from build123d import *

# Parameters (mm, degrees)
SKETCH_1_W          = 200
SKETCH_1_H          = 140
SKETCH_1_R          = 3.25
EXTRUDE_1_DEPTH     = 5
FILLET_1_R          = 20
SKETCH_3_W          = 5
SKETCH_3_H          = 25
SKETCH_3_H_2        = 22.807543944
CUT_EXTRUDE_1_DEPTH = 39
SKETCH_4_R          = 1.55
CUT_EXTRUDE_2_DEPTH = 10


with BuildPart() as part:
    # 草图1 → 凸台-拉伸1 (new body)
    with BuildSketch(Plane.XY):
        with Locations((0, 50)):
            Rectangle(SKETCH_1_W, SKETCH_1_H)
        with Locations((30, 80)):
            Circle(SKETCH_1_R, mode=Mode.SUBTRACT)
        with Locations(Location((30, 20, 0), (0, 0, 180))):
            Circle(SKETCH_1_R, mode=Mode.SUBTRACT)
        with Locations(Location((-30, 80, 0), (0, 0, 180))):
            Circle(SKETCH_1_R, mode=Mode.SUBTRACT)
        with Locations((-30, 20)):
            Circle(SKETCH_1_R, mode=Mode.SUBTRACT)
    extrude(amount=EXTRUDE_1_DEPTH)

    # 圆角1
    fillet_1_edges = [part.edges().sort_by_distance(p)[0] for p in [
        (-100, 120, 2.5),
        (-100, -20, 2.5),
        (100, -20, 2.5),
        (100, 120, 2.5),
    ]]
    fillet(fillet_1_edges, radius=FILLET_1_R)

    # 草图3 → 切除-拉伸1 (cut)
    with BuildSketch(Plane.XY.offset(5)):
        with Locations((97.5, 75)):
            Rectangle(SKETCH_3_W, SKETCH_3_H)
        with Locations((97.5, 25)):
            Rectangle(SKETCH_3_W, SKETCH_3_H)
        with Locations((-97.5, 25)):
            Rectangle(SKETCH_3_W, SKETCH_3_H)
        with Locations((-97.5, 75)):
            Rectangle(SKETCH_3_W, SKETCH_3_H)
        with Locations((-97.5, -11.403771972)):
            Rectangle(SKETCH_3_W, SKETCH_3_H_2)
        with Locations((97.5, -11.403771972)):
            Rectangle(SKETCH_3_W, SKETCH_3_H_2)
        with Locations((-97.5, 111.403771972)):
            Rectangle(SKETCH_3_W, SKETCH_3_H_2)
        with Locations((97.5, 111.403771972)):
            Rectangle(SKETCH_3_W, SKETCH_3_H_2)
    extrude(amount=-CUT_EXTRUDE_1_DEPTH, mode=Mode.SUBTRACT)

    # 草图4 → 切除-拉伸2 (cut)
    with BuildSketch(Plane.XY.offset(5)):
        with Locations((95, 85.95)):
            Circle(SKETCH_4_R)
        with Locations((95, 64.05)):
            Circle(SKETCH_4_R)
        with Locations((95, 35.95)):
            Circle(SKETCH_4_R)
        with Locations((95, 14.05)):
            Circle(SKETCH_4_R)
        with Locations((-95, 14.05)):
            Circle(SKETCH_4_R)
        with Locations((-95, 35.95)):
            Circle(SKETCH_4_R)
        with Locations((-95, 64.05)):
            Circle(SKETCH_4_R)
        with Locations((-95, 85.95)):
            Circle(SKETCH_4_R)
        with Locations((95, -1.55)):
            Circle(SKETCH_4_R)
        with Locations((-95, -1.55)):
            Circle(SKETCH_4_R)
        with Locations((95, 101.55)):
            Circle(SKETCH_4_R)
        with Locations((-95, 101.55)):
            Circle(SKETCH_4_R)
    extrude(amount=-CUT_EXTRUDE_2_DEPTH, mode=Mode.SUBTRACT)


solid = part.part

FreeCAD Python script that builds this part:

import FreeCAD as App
import Part
import Sketcher


def edges_at(feature, points):
    """Names of the edges that pass closest to the given points."""
    edges = feature.Shape.Edges
    near = lambda p: min(range(len(edges)), key=lambda i: edges[i].distToShape(Part.Vertex(*p))[0])
    return sorted({f"Edge{near(p) + 1}" for p in points})


def add_polygon(sketch, points):
    """Adds a closed chain of lines whose ends are joined by coincident constraints."""
    first, n = sketch.GeometryCount, len(points)
    for a, b in zip(points, points[1:] + points[:1]):
        sketch.addGeometry(Part.LineSegment(App.Vector(*a, 0), App.Vector(*b, 0)), False)
    for i in range(n):
        sketch.addConstraint(Sketcher.Constraint("Coincident", first + i, 2, first + (i + 1) % n, 1))

doc = App.newDocument("Part")
body = doc.addObject("PartDesign::Body", "Body")

# Sketch on XY plane
sketch1 = body.newObject("Sketcher::SketchObject", "Sketch")
sketch1.AttachmentSupport = (doc.getObject("XY_Plane"), [""])
sketch1.MapMode = "FlatFace"
add_polygon(sketch1, [(-100, 120), (-100, -20), (100, -20), (100, 120)])  # lines 0-3
sketch1.addGeometry(Part.Circle(App.Vector(-30, 20, 0), App.Vector(0, 0, 1), 3.25), False)  # 4
sketch1.addGeometry(Part.Circle(App.Vector(30, 20, 0), App.Vector(0, 0, 1), 3.25), False)  # 5
sketch1.addGeometry(Part.Circle(App.Vector(-30, 80, 0), App.Vector(0, 0, 1), 3.25), False)  # 6
sketch1.addGeometry(Part.Circle(App.Vector(30, 80, 0), App.Vector(0, 0, 1), 3.25), False)  # 7
sketch1.addConstraint(Sketcher.Constraint("Vertical", 0))
sketch1.addConstraint(Sketcher.Constraint("Horizontal", 1))
sketch1.addConstraint(Sketcher.Constraint("Vertical", 2))
sketch1.addConstraint(Sketcher.Constraint("Horizontal", 3))
sketch1.addConstraint(Sketcher.Constraint("Equal", 4, 5))
sketch1.addConstraint(Sketcher.Constraint("Equal", 5, 6))
sketch1.addConstraint(Sketcher.Constraint("Equal", 6, 7))
sketch1.addConstraint(Sketcher.Constraint("Symmetric", 4, 3, 5, 3, -2))
sketch1.addConstraint(Sketcher.Constraint("Symmetric", 6, 3, 7, 3, -2))
sketch1.addConstraint(Sketcher.Constraint("Vertical", 4, 3, 6, 3))
sketch1.addConstraint(Sketcher.Constraint("Diameter", 4, 6.5))
sketch1.addConstraint(Sketcher.Constraint("DistanceX", 1, 1, 1, 2, 200.0))
sketch1.addConstraint(Sketcher.Constraint("DistanceY", 0, 2, 0, 1, 140.0))
sketch1.addConstraint(Sketcher.Constraint("DistanceX", 4, 3, -1, 1, 30.0))
sketch1.addConstraint(Sketcher.Constraint("DistanceY", -1, 1, 4, 3, 20.0))
sketch1.addConstraint(Sketcher.Constraint("DistanceY", -1, 1, 6, 3, 80.0))
sketch1.addConstraint(Sketcher.Constraint("DistanceX", 0, 2, -1, 1, 100.0))
sketch1.addConstraint(Sketcher.Constraint("DistanceY", 0, 2, -1, 1, 20.0))
pad1 = body.newObject("PartDesign::Pad", "Pad")
pad1.Profile = sketch1
pad1.Length = 5
doc.recompute()

fillet = body.newObject("PartDesign::Fillet", "Fillet")
fillet.Base = (pad1, edges_at(pad1, [
    (-100, 120, 2.5),
    (-100, -20, 2.5),
    (100, -20, 2.5),
    (100, 120, 2.5),
]))
fillet.Radius = 20

# Sketch on XY plane
sketch2 = body.newObject("Sketcher::SketchObject", "Sketch001")
sketch2.AttachmentSupport = (doc.getObject("XY_Plane"), [""])
sketch2.MapMode = "FlatFace"
sketch2.AttachmentOffset = App.Placement(App.Vector(0, 0, 5), App.Rotation())
add_polygon(sketch2, [(95, 87.5), (95, 62.5), (100, 62.5), (100, 87.5)])  # lines 0-3
add_polygon(sketch2, [(95, 37.5), (95, 12.5), (100, 12.5), (100, 37.5)])  # lines 4-7
add_polygon(sketch2, [(-100, 37.5), (-100, 12.5), (-95, 12.5), (-95, 37.5)])  # lines 8-11
add_polygon(sketch2, [(-100, 87.5), (-100, 62.5), (-95, 62.5), (-95, 87.5)])  # lines 12-15
add_polygon(sketch2, [(-100, 0), (-100, -22.807544), (-95, -22.807544), (-95, 0)])  # lines 16-19
add_polygon(sketch2, [(95, 0), (95, -22.807544), (100, -22.807544), (100, 0)])  # lines 20-23
add_polygon(sketch2, [(-100, 122.807544), (-100, 100), (-95, 100), (-95, 122.807544)])  # lines 24-27
add_polygon(sketch2, [(95, 122.807544), (95, 100), (100, 100), (100, 122.807544)])  # lines 28-31
sketch2.addConstraint(Sketcher.Constraint("Vertical", 0))
sketch2.addConstraint(Sketcher.Constraint("Horizontal", 1))
sketch2.addConstraint(Sketcher.Constraint("Vertical", 2))
sketch2.addConstraint(Sketcher.Constraint("Horizontal", 3))
sketch2.addConstraint(Sketcher.Constraint("Vertical", 4))
sketch2.addConstraint(Sketcher.Constraint("Horizontal", 5))
sketch2.addConstraint(Sketcher.Constraint("Vertical", 6))
sketch2.addConstraint(Sketcher.Constraint("Horizontal", 7))
sketch2.addConstraint(Sketcher.Constraint("Vertical", 8))
sketch2.addConstraint(Sketcher.Constraint("Horizontal", 9))
sketch2.addConstraint(Sketcher.Constraint("Vertical", 10))
sketch2.addConstraint(Sketcher.Constraint("Horizontal", 11))
sketch2.addConstraint(Sketcher.Constraint("Vertical", 12))
sketch2.addConstraint(Sketcher.Constraint("Horizontal", 13))
sketch2.addConstraint(Sketcher.Constraint("Vertical", 14))
sketch2.addConstraint(Sketcher.Constraint("Horizontal", 15))
sketch2.addConstraint(Sketcher.Constraint("Vertical", 16))
sketch2.addConstraint(Sketcher.Constraint("Horizontal", 17))
sketch2.addConstraint(Sketcher.Constraint("Vertical", 18))
sketch2.addConstraint(Sketcher.Constraint("Horizontal", 19))
sketch2.addConstraint(Sketcher.Constraint("Vertical", 20))
sketch2.addConstraint(Sketcher.Constraint("Horizontal", 21))
sketch2.addConstraint(Sketcher.Constraint("Vertical", 22))
sketch2.addConstraint(Sketcher.Constraint("Horizontal", 23))
sketch2.addConstraint(Sketcher.Constraint("Vertical", 24))
sketch2.addConstraint(Sketcher.Constraint("Horizontal", 25))
sketch2.addConstraint(Sketcher.Constraint("Vertical", 26))
sketch2.addConstraint(Sketcher.Constraint("Horizontal", 27))
sketch2.addConstraint(Sketcher.Constraint("Vertical", 28))
sketch2.addConstraint(Sketcher.Constraint("Horizontal", 29))
sketch2.addConstraint(Sketcher.Constraint("Vertical", 30))
sketch2.addConstraint(Sketcher.Constraint("Horizontal", 31))
sketch2.addConstraint(Sketcher.Constraint("Symmetric", 19, 2, 22, 2, -1, 1))
sketch2.addConstraint(Sketcher.Constraint("Symmetric", 5, 2, 8, 2, -2))
sketch2.addConstraint(Sketcher.Constraint("Symmetric", 7, 2, 10, 2, -2))
sketch2.addConstraint(Sketcher.Constraint("Symmetric", 1, 2, 12, 2, -2))
sketch2.addConstraint(Sketcher.Constraint("Symmetric", 3, 2, 14, 2, -2))
sketch2.addConstraint(Sketcher.Constraint("Symmetric", 17, 2, 20, 2, -2))
sketch2.addConstraint(Sketcher.Constraint("Symmetric", 25, 2, 28, 2, -2))
sketch2.addConstraint(Sketcher.Constraint("Symmetric", 27, 2, 30, 2, -2))
sketch2.addConstraint(Sketcher.Constraint("PointOnObject", 18, 2, -1))
sketch2.addConstraint(Sketcher.Constraint("Vertical", 3, 2, 4, 2))
sketch2.addConstraint(Sketcher.Constraint("Vertical", 2, 2, 5, 2))
sketch2.addConstraint(Sketcher.Constraint("Vertical", 15, 2, 16, 2))
sketch2.addConstraint(Sketcher.Constraint("Vertical", 14, 2, 17, 2))
sketch2.addConstraint(Sketcher.Constraint("Vertical", 19, 2, 24, 2))
sketch2.addConstraint(Sketcher.Constraint("Vertical", 18, 2, 25, 2))
sketch2.addConstraint(Sketcher.Constraint("Equal", 2, 4))
sketch2.addConstraint(Sketcher.Constraint("Equal", 22, 24))
sketch2.addConstraint(Sketcher.Constraint("DistanceX", 1, 1, 1, 2, 5.0))
sketch2.addConstraint(Sketcher.Constraint("DistanceY", 0, 2, 0, 1, 25.0))
sketch2.addConstraint(Sketcher.Constraint("DistanceX", -1, 1, 0, 2, 95.0))
sketch2.addConstraint(Sketcher.Constraint("DistanceY", -1, 1, 24, 2, 100.0))
sketch2.addConstraint(Sketcher.Constraint("DistanceY", 4, 2, 0, 2, 50.0))
sketch2.addConstraint(Sketcher.Constraint("DistanceY", -1, 1, 0, 2, 62.5))
sketch2.addConstraint(Sketcher.Constraint("DistanceY", 16, 2, 16, 1, 22.807544))
pocket1 = body.newObject("PartDesign::Pocket", "Pocket")
pocket1.Profile = sketch2
pocket1.Length = 39

# Sketch on XY plane
sketch3 = body.newObject("Sketcher::SketchObject", "Sketch002")
sketch3.AttachmentSupport = (doc.getObject("XY_Plane"), [""])
sketch3.MapMode = "FlatFace"
sketch3.AttachmentOffset = App.Placement(App.Vector(0, 0, 5), App.Rotation())
sketch3.addGeometry(Part.Circle(App.Vector(95, 85.95, 0), App.Vector(0, 0, 1), 1.55), False)
sketch3.addGeometry(Part.Circle(App.Vector(95, 64.05, 0), App.Vector(0, 0, 1), 1.55), False)
sketch3.addGeometry(Part.Circle(App.Vector(95, 35.95, 0), App.Vector(0, 0, 1), 1.55), False)
sketch3.addGeometry(Part.Circle(App.Vector(95, 14.05, 0), App.Vector(0, 0, 1), 1.55), False)
sketch3.addGeometry(Part.Circle(App.Vector(-95, 14.05, 0), App.Vector(0, 0, 1), 1.55), False)
sketch3.addGeometry(Part.Circle(App.Vector(-95, 35.95, 0), App.Vector(0, 0, 1), 1.55), False)
sketch3.addGeometry(Part.Circle(App.Vector(-95, 64.05, 0), App.Vector(0, 0, 1), 1.55), False)
sketch3.addGeometry(Part.Circle(App.Vector(-95, 85.95, 0), App.Vector(0, 0, 1), 1.55), False)
sketch3.addGeometry(Part.Circle(App.Vector(95, -1.55, 0), App.Vector(0, 0, 1), 1.55), False)
sketch3.addGeometry(Part.Circle(App.Vector(-95, -1.55, 0), App.Vector(0, 0, 1), 1.55), False)
sketch3.addGeometry(Part.Circle(App.Vector(95, 101.55, 0), App.Vector(0, 0, 1), 1.55), False)
sketch3.addGeometry(Part.Circle(App.Vector(-95, 101.55, 0), App.Vector(0, 0, 1), 1.55), False)
sketch3.addConstraint(Sketcher.Constraint("Equal", 0, 1))
sketch3.addConstraint(Sketcher.Constraint("Equal", 1, 2))
sketch3.addConstraint(Sketcher.Constraint("Equal", 2, 3))
sketch3.addConstraint(Sketcher.Constraint("Equal", 3, 4))
sketch3.addConstraint(Sketcher.Constraint("Equal", 4, 5))
sketch3.addConstraint(Sketcher.Constraint("Equal", 5, 6))
sketch3.addConstraint(Sketcher.Constraint("Equal", 6, 7))
sketch3.addConstraint(Sketcher.Constraint("Equal", 7, 8))
sketch3.addConstraint(Sketcher.Constraint("Equal", 8, 9))
sketch3.addConstraint(Sketcher.Constraint("Equal", 9, 10))
sketch3.addConstraint(Sketcher.Constraint("Equal", 10, 11))
sketch3.addConstraint(Sketcher.Constraint("Symmetric", 3, 3, 4, 3, -2))
sketch3.addConstraint(Sketcher.Constraint("Symmetric", 2, 3, 5, 3, -2))
sketch3.addConstraint(Sketcher.Constraint("Symmetric", 1, 3, 6, 3, -2))
sketch3.addConstraint(Sketcher.Constraint("Symmetric", 0, 3, 7, 3, -2))
sketch3.addConstraint(Sketcher.Constraint("Symmetric", 8, 3, 9, 3, -2))
sketch3.addConstraint(Sketcher.Constraint("Symmetric", 10, 3, 11, 3, -2))
sketch3.addConstraint(Sketcher.Constraint("Vertical", 0, 3, 1, 3))
sketch3.addConstraint(Sketcher.Constraint("Vertical", 1, 3, 2, 3))
sketch3.addConstraint(Sketcher.Constraint("Vertical", 2, 3, 3, 3))
sketch3.addConstraint(Sketcher.Constraint("Vertical", 3, 3, 8, 3))
sketch3.addConstraint(Sketcher.Constraint("Vertical", 8, 3, 10, 3))
sketch3.addConstraint(Sketcher.Constraint("Diameter", 0, 3.1))
sketch3.addConstraint(Sketcher.Constraint("DistanceX", -1, 1, 0, 3, 95.0))
sketch3.addConstraint(Sketcher.Constraint("DistanceY", 2, 3, 0, 3, 50.0))
sketch3.addConstraint(Sketcher.Constraint("DistanceY", 3, 3, 1, 3, 50.0))
sketch3.addConstraint(Sketcher.Constraint("DistanceY", 1, 3, 0, 3, 21.9))
sketch3.addConstraint(Sketcher.Constraint("DistanceY", 8, 3, 3, 3, 15.6))
sketch3.addConstraint(Sketcher.Constraint("DistanceY", 0, 3, 10, 3, 15.6))
sketch3.addConstraint(Sketcher.Constraint("DistanceY", -1, 1, 0, 3, 85.95))
pocket2 = body.newObject("PartDesign::Pocket", "Pocket001")
pocket2.Profile = sketch3
pocket2.Length = 10

doc.recompute()
